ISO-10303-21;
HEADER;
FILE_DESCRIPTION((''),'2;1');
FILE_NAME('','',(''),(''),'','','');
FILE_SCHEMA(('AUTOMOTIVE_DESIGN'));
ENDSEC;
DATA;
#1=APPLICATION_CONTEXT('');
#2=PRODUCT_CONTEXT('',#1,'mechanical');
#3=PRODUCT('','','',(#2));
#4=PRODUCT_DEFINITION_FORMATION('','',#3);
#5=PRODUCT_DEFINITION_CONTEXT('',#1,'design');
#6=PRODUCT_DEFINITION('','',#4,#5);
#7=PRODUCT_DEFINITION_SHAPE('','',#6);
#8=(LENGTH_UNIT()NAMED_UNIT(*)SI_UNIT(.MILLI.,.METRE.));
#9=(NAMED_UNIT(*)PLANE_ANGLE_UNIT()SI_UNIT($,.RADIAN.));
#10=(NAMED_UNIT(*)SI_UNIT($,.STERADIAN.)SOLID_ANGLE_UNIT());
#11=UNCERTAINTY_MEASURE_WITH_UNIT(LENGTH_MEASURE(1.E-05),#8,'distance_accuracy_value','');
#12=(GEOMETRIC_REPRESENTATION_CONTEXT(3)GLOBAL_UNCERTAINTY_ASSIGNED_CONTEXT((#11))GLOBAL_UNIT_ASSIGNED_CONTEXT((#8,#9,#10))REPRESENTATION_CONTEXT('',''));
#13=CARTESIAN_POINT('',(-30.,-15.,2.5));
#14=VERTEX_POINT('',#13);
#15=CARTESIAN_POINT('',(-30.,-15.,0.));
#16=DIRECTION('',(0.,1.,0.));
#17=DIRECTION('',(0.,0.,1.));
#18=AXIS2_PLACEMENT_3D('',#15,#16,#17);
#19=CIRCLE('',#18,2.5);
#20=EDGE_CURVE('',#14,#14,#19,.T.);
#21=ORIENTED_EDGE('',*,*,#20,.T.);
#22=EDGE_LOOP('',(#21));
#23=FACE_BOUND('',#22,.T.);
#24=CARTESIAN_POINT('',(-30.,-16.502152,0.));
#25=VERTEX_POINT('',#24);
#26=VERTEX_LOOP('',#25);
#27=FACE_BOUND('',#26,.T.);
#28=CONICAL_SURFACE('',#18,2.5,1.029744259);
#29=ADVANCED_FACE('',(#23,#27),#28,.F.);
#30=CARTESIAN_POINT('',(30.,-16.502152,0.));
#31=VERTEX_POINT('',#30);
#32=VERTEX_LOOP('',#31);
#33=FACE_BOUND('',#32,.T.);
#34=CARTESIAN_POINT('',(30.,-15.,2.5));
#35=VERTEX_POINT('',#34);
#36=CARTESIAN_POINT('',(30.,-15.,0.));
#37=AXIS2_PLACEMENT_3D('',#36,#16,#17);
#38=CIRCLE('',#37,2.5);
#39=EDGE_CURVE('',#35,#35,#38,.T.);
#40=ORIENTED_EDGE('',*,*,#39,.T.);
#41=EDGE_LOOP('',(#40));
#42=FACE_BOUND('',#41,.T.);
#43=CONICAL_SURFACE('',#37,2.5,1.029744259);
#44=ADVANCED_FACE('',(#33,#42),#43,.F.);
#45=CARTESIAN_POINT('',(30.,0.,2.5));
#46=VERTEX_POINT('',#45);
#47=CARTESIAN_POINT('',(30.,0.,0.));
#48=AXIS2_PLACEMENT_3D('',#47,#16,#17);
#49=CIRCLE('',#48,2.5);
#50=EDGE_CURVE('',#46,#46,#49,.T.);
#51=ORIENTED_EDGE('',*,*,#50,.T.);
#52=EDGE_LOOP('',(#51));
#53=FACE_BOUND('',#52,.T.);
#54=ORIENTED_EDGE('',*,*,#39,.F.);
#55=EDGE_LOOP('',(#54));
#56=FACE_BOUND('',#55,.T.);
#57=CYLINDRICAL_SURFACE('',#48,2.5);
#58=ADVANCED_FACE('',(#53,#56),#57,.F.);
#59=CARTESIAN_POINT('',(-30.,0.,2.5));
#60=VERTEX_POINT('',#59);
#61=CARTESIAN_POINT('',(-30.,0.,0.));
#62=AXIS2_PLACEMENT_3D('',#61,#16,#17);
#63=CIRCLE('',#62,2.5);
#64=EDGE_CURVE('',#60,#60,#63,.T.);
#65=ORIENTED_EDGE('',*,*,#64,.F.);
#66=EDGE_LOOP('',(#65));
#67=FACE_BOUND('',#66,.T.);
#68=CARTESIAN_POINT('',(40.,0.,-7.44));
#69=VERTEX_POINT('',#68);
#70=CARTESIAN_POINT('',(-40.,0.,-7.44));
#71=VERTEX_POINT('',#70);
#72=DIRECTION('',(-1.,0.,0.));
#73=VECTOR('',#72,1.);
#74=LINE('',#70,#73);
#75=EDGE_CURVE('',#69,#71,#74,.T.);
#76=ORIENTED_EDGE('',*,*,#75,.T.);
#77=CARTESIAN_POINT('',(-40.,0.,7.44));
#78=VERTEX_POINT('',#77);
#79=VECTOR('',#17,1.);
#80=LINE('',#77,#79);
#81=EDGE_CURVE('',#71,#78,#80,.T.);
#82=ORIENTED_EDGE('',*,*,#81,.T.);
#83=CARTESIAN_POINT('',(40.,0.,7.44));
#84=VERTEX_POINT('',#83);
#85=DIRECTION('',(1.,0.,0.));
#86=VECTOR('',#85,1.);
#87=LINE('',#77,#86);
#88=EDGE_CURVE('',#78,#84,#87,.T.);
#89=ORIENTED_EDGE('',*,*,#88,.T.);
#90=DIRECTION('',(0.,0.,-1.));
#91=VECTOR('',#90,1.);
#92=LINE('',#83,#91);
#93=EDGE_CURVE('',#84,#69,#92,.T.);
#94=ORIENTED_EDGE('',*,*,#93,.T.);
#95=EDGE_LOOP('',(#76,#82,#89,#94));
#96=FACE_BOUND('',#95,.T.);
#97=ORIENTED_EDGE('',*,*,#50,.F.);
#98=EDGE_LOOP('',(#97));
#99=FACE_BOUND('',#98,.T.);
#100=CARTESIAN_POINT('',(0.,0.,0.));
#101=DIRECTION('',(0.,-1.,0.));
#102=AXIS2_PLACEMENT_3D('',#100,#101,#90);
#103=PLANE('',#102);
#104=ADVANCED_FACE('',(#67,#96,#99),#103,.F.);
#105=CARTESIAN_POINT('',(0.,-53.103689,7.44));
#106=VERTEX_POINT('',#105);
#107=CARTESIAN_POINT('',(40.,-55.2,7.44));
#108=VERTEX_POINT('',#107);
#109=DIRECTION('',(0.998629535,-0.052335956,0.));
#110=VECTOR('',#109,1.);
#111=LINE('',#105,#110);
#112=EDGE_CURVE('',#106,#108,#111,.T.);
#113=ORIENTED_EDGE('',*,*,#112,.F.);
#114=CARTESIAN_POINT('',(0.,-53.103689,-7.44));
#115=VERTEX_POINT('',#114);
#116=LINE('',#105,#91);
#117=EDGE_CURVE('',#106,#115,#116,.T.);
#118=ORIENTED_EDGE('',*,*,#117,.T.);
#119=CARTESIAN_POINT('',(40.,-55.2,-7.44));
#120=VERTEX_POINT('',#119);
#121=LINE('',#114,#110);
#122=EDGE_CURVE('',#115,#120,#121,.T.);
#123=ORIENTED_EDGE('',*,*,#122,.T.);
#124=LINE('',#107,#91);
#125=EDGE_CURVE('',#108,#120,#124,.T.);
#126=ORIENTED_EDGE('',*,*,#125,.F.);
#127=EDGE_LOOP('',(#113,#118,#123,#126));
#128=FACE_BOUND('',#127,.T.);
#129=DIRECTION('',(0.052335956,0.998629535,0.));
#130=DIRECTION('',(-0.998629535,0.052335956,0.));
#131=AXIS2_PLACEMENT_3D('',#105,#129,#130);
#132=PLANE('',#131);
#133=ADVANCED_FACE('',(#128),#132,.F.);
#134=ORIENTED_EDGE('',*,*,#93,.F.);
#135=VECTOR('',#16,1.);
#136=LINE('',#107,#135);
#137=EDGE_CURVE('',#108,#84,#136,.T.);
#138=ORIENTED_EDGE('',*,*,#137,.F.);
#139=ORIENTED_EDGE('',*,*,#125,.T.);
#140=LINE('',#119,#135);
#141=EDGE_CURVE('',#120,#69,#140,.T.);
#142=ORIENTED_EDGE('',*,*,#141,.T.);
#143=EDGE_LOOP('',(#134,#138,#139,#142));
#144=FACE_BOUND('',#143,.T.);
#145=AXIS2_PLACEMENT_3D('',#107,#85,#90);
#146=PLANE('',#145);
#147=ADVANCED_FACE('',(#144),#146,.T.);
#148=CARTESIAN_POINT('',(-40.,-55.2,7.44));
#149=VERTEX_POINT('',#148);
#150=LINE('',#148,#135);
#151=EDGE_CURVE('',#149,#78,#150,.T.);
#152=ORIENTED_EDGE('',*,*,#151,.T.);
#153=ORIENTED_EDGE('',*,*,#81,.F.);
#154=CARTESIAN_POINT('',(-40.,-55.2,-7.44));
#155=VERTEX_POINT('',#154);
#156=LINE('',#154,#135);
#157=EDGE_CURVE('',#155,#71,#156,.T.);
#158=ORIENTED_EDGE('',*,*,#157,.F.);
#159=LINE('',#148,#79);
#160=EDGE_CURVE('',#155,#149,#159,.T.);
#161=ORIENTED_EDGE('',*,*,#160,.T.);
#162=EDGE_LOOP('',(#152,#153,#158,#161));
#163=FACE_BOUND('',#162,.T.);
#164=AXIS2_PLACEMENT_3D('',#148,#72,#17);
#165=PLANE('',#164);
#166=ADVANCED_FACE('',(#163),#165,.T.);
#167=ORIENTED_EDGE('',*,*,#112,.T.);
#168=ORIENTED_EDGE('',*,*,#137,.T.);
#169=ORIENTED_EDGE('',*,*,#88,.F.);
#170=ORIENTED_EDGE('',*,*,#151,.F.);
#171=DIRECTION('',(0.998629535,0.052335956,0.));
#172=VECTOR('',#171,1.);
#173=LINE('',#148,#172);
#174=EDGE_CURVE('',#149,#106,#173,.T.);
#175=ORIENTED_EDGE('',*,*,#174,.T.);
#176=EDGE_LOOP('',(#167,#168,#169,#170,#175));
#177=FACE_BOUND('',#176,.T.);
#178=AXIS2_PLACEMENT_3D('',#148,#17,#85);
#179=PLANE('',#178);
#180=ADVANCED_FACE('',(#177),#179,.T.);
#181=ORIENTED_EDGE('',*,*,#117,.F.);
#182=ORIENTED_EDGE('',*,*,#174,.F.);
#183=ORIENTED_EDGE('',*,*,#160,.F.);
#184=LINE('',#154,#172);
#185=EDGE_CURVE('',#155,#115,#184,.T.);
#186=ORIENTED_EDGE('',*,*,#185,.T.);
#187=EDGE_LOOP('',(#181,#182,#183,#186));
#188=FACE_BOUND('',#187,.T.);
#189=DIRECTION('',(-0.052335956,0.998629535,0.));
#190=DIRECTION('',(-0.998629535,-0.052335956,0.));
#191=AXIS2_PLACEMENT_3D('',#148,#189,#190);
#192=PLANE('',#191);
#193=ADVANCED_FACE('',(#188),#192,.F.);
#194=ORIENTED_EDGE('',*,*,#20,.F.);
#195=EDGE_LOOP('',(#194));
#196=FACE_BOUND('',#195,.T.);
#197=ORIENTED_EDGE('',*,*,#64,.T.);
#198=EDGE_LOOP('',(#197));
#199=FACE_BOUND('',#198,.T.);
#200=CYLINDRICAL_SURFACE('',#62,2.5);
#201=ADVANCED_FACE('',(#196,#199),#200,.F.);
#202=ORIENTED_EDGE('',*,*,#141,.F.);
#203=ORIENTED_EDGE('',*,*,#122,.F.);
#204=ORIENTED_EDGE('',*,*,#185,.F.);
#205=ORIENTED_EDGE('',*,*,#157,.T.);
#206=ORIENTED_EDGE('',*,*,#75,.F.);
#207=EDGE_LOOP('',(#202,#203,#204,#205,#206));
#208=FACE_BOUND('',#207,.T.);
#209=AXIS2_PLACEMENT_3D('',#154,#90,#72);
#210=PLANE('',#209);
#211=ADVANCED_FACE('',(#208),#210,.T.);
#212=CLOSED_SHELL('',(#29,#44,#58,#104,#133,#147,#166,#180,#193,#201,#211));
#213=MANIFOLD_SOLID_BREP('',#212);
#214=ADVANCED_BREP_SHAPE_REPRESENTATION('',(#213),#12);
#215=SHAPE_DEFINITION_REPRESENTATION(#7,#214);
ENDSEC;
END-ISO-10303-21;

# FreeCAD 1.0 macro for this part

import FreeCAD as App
import Part
import Sketcher

V = App.Vector
Q = App.Units.Quantity


def add_polygon(sketch, points):
    """Adds a closed chain of lines whose ends are joined by coincident constraints."""
    first, n = sketch.GeometryCount, len(points)
    for a, b in zip(points, points[1:] + points[:1]):
        sketch.addGeometry(Part.LineSegment(App.Vector(*a, 0), App.Vector(*b, 0)), False)
    for i in range(n):
        sketch.addConstraint(Sketcher.Constraint("Coincident", first + i, 2, first + (i + 1) % n, 1))

doc = App.newDocument("Part")
body = doc.addObject("PartDesign::Body", "Body")

# Sketch on XZ plane
sketch1 = doc.addObject("Sketcher::SketchObject", "Sketch")
body.addObject(sketch1)
sketch1.AttachmentSupport = (doc.XZ_Plane, [""])
sketch1.MapMode = "FlatFace"
add_polygon(sketch1, [(-40, -7.44), (-40, 7.44), (40, 7.44), (40, -7.44)])  # lines 0-3
sketch1.addConstraint([
    Sketcher.Constraint("Vertical", 0),
    Sketcher.Constraint("Horizontal", 1),
    Sketcher.Constraint("Vertical", 2),
    Sketcher.Constraint("Horizontal", 3),
    Sketcher.Constraint("Symmetric", 0, 2, 2, 2, -1, 1),
    Sketcher.Constraint("DistanceX", 1, 1, 1, 2, 80.0),
    Sketcher.Constraint("DistanceY", 0, 1, 0, 2, 14.88),
])
pad1 = doc.addObject("PartDesign::Pad", "Pad")
body.addObject(pad1)
pad1.Profile = sketch1
pad1.Length = 55.2

# Sketch on XY plane
sketch2 = doc.addObject("Sketcher::SketchObject", "Sketch001")
body.addObject(sketch2)
sketch2.AttachmentSupport = (doc.XY_Plane, [""])
sketch2.MapMode = "FlatFace"
sketch2.AttachmentOffset = App.Placement(V(0, 0, -7.44), App.Rotation())
add_polygon(sketch2, [(-40, -55.2), (0, -53.103689), (40, -55.2)])  # lines 0-2
sketch2.addConstraint([
    Sketcher.Constraint("Horizontal", 2),
    Sketcher.Constraint("PointOnObject", 0, 2, -2),
    Sketcher.Constraint("Equal", 0, 1),
    Sketcher.Constraint("DistanceX", 2, 2, 2, 1, 80.0),
    Sketcher.Constraint("Angle", 0, Q("3 deg")),
    Sketcher.Constraint("DistanceY", 1, 2, -1, 1, 55.2),
])
pocket1 = doc.addObject("PartDesign::Pocket", "Pocket")
body.addObject(pocket1)
pocket1.Profile = sketch2
pocket1.Type = "ThroughAll"
pocket1.Reversed = True

# Sketch on XZ plane
sketch3 = doc.addObject("Sketcher::SketchObject", "Sketch002")
body.addObject(sketch3)
sketch3.AttachmentSupport = (doc.XZ_Plane, [""])
sketch3.MapMode = "FlatFace"
sketch3.addGeometry([
    Part.Circle(V(-30, 0, 0), V(0, 0, 1), 2.5),
    Part.Circle(V(30, 0, 0), V(0, 0, 1), 2.5),
], False)
sketch3.addConstraint([
    Sketcher.Constraint("Equal", 0, 1),
    Sketcher.Constraint("Symmetric", 0, 3, 1, 3, -1, 1),
    Sketcher.Constraint("PointOnObject", 0, 3, -1),
    Sketcher.Constraint("Diameter", 0, 5.0),
    Sketcher.Constraint("DistanceX", 0, 3, -1, 1, 30.0),
])
doc.recompute()
hole = doc.addObject("PartDesign::Hole", "Hole")
body.addObject(hole)
hole.Profile = sketch3
hole.ThreadType = "None"
hole.Diameter = 5
hole.DepthType = "Dimension"
hole.Depth = 15
hole.DrillPoint = "Angled"
hole.DrillPointAngle = 118
hole.Reversed = True

doc.recompute()
